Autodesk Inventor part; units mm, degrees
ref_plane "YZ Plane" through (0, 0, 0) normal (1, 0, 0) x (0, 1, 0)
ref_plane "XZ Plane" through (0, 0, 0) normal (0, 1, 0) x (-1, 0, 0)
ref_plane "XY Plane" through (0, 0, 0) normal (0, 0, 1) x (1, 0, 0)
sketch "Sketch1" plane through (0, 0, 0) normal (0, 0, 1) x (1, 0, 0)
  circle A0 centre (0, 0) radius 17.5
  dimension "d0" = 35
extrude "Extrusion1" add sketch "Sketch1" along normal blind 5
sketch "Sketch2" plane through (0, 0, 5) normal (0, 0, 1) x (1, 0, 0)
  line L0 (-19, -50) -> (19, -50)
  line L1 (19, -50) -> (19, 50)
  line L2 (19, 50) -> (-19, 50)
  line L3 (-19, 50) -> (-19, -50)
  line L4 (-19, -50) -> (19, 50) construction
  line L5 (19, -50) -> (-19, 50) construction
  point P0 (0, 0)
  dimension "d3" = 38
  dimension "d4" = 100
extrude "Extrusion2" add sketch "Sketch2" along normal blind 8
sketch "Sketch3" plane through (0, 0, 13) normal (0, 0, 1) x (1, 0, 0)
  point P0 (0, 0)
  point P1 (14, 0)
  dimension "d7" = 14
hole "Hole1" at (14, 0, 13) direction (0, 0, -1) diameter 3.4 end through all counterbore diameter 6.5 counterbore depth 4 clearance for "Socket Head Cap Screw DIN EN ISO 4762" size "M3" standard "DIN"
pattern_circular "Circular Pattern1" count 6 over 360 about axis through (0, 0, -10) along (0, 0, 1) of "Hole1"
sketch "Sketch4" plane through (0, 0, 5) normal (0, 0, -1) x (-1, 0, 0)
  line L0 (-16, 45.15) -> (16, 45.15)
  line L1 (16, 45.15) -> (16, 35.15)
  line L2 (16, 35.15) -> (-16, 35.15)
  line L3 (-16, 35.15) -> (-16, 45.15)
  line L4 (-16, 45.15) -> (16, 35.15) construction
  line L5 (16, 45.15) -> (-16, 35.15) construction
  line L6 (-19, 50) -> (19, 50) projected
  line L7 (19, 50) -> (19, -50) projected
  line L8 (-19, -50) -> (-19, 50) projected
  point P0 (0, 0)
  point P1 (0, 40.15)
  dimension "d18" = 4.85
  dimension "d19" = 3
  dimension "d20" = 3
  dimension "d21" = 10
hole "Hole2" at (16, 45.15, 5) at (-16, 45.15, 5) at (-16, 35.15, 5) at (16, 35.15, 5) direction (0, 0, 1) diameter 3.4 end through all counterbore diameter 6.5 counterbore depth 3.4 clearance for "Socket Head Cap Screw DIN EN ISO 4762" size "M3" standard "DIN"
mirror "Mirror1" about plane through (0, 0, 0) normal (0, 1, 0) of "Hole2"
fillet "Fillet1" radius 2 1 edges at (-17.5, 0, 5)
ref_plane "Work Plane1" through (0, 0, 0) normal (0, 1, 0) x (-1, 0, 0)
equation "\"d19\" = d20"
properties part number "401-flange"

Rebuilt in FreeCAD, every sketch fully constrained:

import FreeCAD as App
import Part
import Sketcher
from FreeCAD import Vector
Q = App.Units.Quantity


def edges_at(feature, points):
    """Names of the edges that pass closest to the given points."""
    edges = feature.Shape.Edges
    near = lambda p: min(range(len(edges)), key=lambda i: edges[i].distToShape(Part.Vertex(*p))[0])
    return sorted({f"Edge{near(p) + 1}" for p in points})

doc = App.newDocument("Part")
body = doc.addObject("PartDesign::Body", "Body")

# Sketch on XY plane
sketch1 = doc.addObject("Sketcher::SketchObject", "Sketch")
body.addObject(sketch1)
sketch1.AttachmentSupport = (doc.XY_Plane, [""])
sketch1.MapMode = "FlatFace"
sketch1.addGeometry(Part.Circle(Vector(0, 0, 0), Vector(0, 0, 1), 18), False)
sketch1.addConstraint([
    Sketcher.Constraint("Coincident", 0, 3, -1, 1),
    Sketcher.Constraint("Diameter", 0, Q("35 mm")),
])
pad1 = doc.addObject("PartDesign::Pad", "Pad")
body.addObject(pad1)
pad1.Profile = sketch1
pad1.Length = 5

# Sketch on XY plane
sketch2 = doc.addObject("Sketcher::SketchObject", "Sketch001")
body.addObject(sketch2)
sketch2.AttachmentSupport = (doc.XY_Plane, [""])
sketch2.MapMode = "FlatFace"
sketch2.AttachmentOffset = App.Placement(Vector(0, 0, 5), App.Rotation())
sketch2.addGeometry([
    Part.LineSegment(Vector(-19, 50, 0), Vector(-19, -50, 0)),
    Part.LineSegment(Vector(-19, -50, 0), Vector(19, -50, 0)),
    Part.LineSegment(Vector(19, -50, 0), Vector(19, 50, 0)),
    Part.LineSegment(Vector(19, 50, 0), Vector(-19, 50, 0)),
], False)
sketch2.addConstraint([
    Sketcher.Constraint("Coincident", 0, 2, 1, 1),
    Sketcher.Constraint("Coincident", 1, 2, 2, 1),
    Sketcher.Constraint("Coincident", 2, 2, 3, 1),
    Sketcher.Constraint("Coincident", 3, 2, 0, 1),
    Sketcher.Constraint("Vertical", 0),
    Sketcher.Constraint("Horizontal", 1),
    Sketcher.Constraint("Vertical", 2),
    Sketcher.Constraint("Horizontal", 3),
    Sketcher.Constraint("Symmetric", 0, 2, 2, 2, -1, 1),
    Sketcher.Constraint("DistanceX", 1, 1, 1, 2, Q("38 mm")),
    Sketcher.Constraint("DistanceY", 0, 2, 0, 1, Q("100 mm")),
])
pad2 = doc.addObject("PartDesign::Pad", "Pad001")
body.addObject(pad2)
pad2.Profile = sketch2
pad2.Length = 8

# Sketch on XY plane
sketch3 = doc.addObject("Sketcher::SketchObject", "Sketch002")
body.addObject(sketch3)
sketch3.AttachmentSupport = (doc.XY_Plane, [""])
sketch3.MapMode = "FlatFace"
sketch3.AttachmentOffset = App.Placement(Vector(0, 0, 13), App.Rotation())
sketch3.addGeometry(Part.Circle(Vector(14, 0, 0), Vector(0, 0, 1), 1.7), False)
sketch3.addConstraint([
    Sketcher.Constraint("PointOnObject", 0, 3, -1),
    Sketcher.Constraint("Diameter", 0, Q("3.4 mm")),
    Sketcher.Constraint("DistanceX", -1, 1, 0, 3, Q("14 mm")),
])
doc.recompute()
hole = doc.addObject("PartDesign::Hole", "Hole")
body.addObject(hole)
hole.Profile = sketch3
hole.ThreadType = "None"
hole.Diameter = 3.4
hole.DepthType = "ThroughAll"
hole.HoleCutType = "Counterbore"
hole.HoleCutDiameter = 6.5
hole.HoleCutDepth = 4
doc.recompute()

polarpattern = doc.addObject("PartDesign::PolarPattern", "PolarPattern")
body.addObject(polarpattern)
polarpattern.Originals = [hole]
polarpattern.Axis = (doc.Z_Axis, [""])
polarpattern.Angle = 360
polarpattern.Occurrences = 6
body.Tip = polarpattern

# Sketch on XY plane
sketch4 = doc.addObject("Sketcher::SketchObject", "Sketch003")
body.addObject(sketch4)
sketch4.AttachmentSupport = (doc.XY_Plane, [""])
sketch4.MapMode = "FlatFace"
sketch4.AttachmentOffset = App.Placement(Vector(0, 0, 5), App.Rotation())
sketch4.addGeometry([
    Part.Circle(Vector(16, 45.1, 0), Vector(0, 0, 1), 1.7),
    Part.Circle(Vector(-16, 45.1, 0), Vector(0, 0, 1), 1.7),
    Part.Circle(Vector(-16, 35.1, 0), Vector(0, 0, 1), 1.7),
    Part.Circle(Vector(16, 35.1, 0), Vector(0, 0, 1), 1.7),
], False)
sketch4.addConstraint([
    Sketcher.Constraint("Equal", 0, 1),
    Sketcher.Constraint("Equal", 1, 2),
    Sketcher.Constraint("Equal", 2, 3),
    Sketcher.Constraint("Symmetric", 0, 3, 1, 3, -2),
    Sketcher.Constraint("Symmetric", 2, 3, 3, 3, -2),
    Sketcher.Constraint("Vertical", 1, 3, 2, 3),
    Sketcher.Constraint("Diameter", 0, Q("3.4 mm")),
    Sketcher.Constraint("DistanceX", -1, 1, 0, 3, Q("16 mm")),
    Sketcher.Constraint("DistanceY", 2, 3, 1, 3, Q("10 mm")),
    Sketcher.Constraint("DistanceY", -1, 1, 0, 3, Q("45.15 mm")),
])
doc.recompute()
hole2 = doc.addObject("PartDesign::Hole", "Hole001")
body.addObject(hole2)
hole2.Profile = sketch4
hole2.ThreadType = "None"
hole2.Diameter = 3.4
hole2.DepthType = "ThroughAll"
hole2.HoleCutType = "Counterbore"
hole2.HoleCutDiameter = 6.5
hole2.HoleCutDepth = 3.4
hole2.Reversed = True
doc.recompute()

mirrored = doc.addObject("PartDesign::Mirrored", "Mirrored")
body.addObject(mirrored)
mirrored.Originals = [hole2]
mirrored.MirrorPlane = (doc.XZ_Plane, [""])
body.Tip = mirrored
doc.recompute()

fillet = doc.addObject("PartDesign::Fillet", "Fillet")
body.addObject(fillet)
fillet.Base = (mirrored, edges_at(mirrored, [(-17.5, 0, 5)]))
fillet.Radius = 2

doc.recompute()
